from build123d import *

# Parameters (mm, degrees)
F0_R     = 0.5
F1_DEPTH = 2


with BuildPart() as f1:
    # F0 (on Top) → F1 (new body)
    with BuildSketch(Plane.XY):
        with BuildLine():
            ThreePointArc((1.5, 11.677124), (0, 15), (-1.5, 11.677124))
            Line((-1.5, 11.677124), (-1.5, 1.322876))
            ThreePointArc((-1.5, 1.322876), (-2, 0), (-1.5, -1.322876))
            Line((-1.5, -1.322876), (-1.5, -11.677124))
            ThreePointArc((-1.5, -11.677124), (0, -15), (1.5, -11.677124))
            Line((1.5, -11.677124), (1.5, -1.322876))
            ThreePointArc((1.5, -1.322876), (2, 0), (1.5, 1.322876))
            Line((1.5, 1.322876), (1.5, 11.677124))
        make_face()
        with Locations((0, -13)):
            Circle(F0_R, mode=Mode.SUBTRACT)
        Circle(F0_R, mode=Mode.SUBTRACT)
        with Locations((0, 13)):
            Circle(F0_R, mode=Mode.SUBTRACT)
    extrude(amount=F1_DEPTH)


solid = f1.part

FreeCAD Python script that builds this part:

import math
import FreeCAD as App
import Part
import Sketcher

doc = App.newDocument("Part")
body = doc.addObject("PartDesign::Body", "Body")

# Sketch on XY plane
sketch1 = body.newObject("Sketcher::SketchObject", "Sketch")
sketch1.AttachmentSupport = (doc.getObject("XY_Plane"), [""])
sketch1.MapMode = "FlatFace"
sketch1.addGeometry(Part.ArcOfCircle(Part.Circle(App.Vector(0, 13, 0), App.Vector(0, 0, 1), 2), math.radians(-41), math.radians(221)), False)
sketch1.addGeometry(Part.LineSegment(App.Vector(-1.5, 11.7, 0), App.Vector(-1.5, 1.3, 0)), False)
sketch1.addGeometry(Part.ArcOfCircle(Part.Circle(App.Vector(0, 0, 0), App.Vector(0, 0, 1), 2), math.radians(139), math.radians(221)), False)
sketch1.addGeometry(Part.LineSegment(App.Vector(-1.5, -1.3, 0), App.Vector(-1.5, -11.7, 0)), False)
sketch1.addGeometry(Part.ArcOfCircle(Part.Circle(App.Vector(0, -13, 0), App.Vector(0, 0, 1), 2), math.radians(139), math.radians(401)), False)
sketch1.addGeometry(Part.LineSegment(App.Vector(1.5, -11.7, 0), App.Vector(1.5, -1.3, 0)), False)
sketch1.addGeometry(Part.ArcOfCircle(Part.Circle(App.Vector(0, 0, 0), App.Vector(0, 0, 1), 2), math.radians(-41), math.radians(41)), False)
sketch1.addGeometry(Part.LineSegment(App.Vector(1.5, 1.3, 0), App.Vector(1.5, 11.7, 0)), False)
sketch1.addGeometry(Part.Circle(App.Vector(0, -13, 0), App.Vector(0, 0, 1), 0.5), False)
sketch1.addGeometry(Part.Circle(App.Vector(0, 0, 0), App.Vector(0, 0, 1), 0.5), False)
sketch1.addGeometry(Part.Circle(App.Vector(0, 13, 0), App.Vector(0, 0, 1), 0.5), False)
sketch1.addConstraint(Sketcher.Constraint("Coincident", 0, 2, 1, 1))
sketch1.addConstraint(Sketcher.Constraint("Coincident", 1, 2, 2, 1))
sketch1.addConstraint(Sketcher.Constraint("Coincident", 2, 2, 3, 1))
sketch1.addConstraint(Sketcher.Constraint("Coincident", 3, 2, 4, 1))
sketch1.addConstraint(Sketcher.Constraint("Coincident", 4, 2, 5, 1))
sketch1.addConstraint(Sketcher.Constraint("Coincident", 5, 2, 6, 1))
sketch1.addConstraint(Sketcher.Constraint("Coincident", 6, 2, 7, 1))
sketch1.addConstraint(Sketcher.Constraint("Coincident", 7, 2, 0, 1))
sketch1.addConstraint(Sketcher.Constraint("Vertical", 1))
sketch1.addConstraint(Sketcher.Constraint("Vertical", 3))
sketch1.addConstraint(Sketcher.Constraint("Vertical", 5))
sketch1.addConstraint(Sketcher.Constraint("Vertical", 7))
sketch1.addConstraint(Sketcher.Constraint("Coincident", 2, 3, -1, 1))
sketch1.addConstraint(Sketcher.Constraint("Coincident", 6, 3, -1, 1))
sketch1.addConstraint(Sketcher.Constraint("Coincident", 9, 3, -1, 1))
sketch1.addConstraint(Sketcher.Constraint("Coincident", 8, 3, 4, 3))
sketch1.addConstraint(Sketcher.Constraint("Coincident", 10, 3, 0, 3))
sketch1.addConstraint(Sketcher.Constraint("Equal", 0, 2))
sketch1.addConstraint(Sketcher.Constraint("Equal", 2, 4))
sketch1.addConstraint(Sketcher.Constraint("Equal", 4, 6))
sketch1.addConstraint(Sketcher.Constraint("Equal", 8, 9))
sketch1.addConstraint(Sketcher.Constraint("Equal", 9, 10))
sketch1.addConstraint(Sketcher.Constraint("Symmetric", 0, 3, 4, 3, -1, 1))
sketch1.addConstraint(Sketcher.Constraint("Symmetric", 3, 2, 4, 2, -2))
sketch1.addConstraint(Sketcher.Constraint("Horizontal", 1, 2, 6, 2))
sketch1.addConstraint(Sketcher.Constraint("Vertical", 1, 2, 2, 2))
sketch1.addConstraint(Sketcher.Constraint("Diameter", 8, 1.0))
sketch1.addConstraint(Sketcher.Constraint("Radius", 0, 2.0))
sketch1.addConstraint(Sketcher.Constraint("DistanceY", -1, 1, 0, 3, 13.0))
sketch1.addConstraint(Sketcher.Constraint("DistanceX", 3, 2, 4, 2, 3.0))
pad1 = body.newObject("PartDesign::Pad", "Pad")
pad1.Profile = sketch1
pad1.Length = 2

doc.recompute()
